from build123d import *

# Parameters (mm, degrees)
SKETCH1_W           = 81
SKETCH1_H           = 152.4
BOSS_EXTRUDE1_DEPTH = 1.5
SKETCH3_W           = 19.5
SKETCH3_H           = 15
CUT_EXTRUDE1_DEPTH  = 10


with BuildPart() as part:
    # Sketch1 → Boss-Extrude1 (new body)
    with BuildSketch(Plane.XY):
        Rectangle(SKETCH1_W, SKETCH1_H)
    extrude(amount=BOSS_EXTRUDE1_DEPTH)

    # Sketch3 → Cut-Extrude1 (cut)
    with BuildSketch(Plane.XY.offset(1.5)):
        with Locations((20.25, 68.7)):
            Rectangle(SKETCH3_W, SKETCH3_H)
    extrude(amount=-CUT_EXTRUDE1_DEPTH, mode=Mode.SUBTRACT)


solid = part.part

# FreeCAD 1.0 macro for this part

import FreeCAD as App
import Part
import Sketcher
from FreeCAD import Vector
Q = App.Units.Quantity

doc = App.newDocument("Part")
body = doc.addObject("PartDesign::Body", "Body")

sketch1 = body.newObject("Sketcher::SketchObject", "Sketch")
sketch1.AttachmentSupport = (doc.getObject("XY_Plane"), [""])
sketch1.MapMode = "FlatFace"
sketch1.addGeometry([
    Part.LineSegment(Vector(-40, 76, 0), Vector(-40, -76, 0)),
    Part.LineSegment(Vector(-40, -76, 0), Vector(40, -76, 0)),
    Part.LineSegment(Vector(40, -76, 0), Vector(40, 76, 0)),
    Part.LineSegment(Vector(40, 76, 0), Vector(-40, 76, 0)),
], False)
sketch1.addConstraint([
    Sketcher.Constraint("Coincident", 0, 2, 1, 1),
    Sketcher.Constraint("Coincident", 1, 2, 2, 1),
    Sketcher.Constraint("Coincident", 2, 2, 3, 1),
    Sketcher.Constraint("Coincident", 3, 2, 0, 1),
    Sketcher.Constraint("Vertical", 0),
    Sketcher.Constraint("Horizontal", 1),
    Sketcher.Constraint("Vertical", 2),
    Sketcher.Constraint("Horizontal", 3),
    Sketcher.Constraint("Symmetric", 0, 2, 2, 2, -1, 1),
    Sketcher.Constraint("DistanceX", 1, 1, 1, 2, Q("81 mm")),
    Sketcher.Constraint("DistanceY", 0, 2, 0, 1, Q("152.4 mm")),
])
pad1 = body.newObject("PartDesign::Pad", "Pad")
pad1.Profile = sketch1
pad1.Length = 1.5

sketch2 = body.newObject("Sketcher::SketchObject", "Sketch001")
sketch2.AttachmentSupport = (doc.getObject("XY_Plane"), [""])
sketch2.MapMode = "FlatFace"
sketch2.AttachmentOffset = App.Placement(Vector(0, 0, 1.5), App.Rotation())
sketch2.addGeometry([
    Part.LineSegment(Vector(10, 76, 0), Vector(10, 61, 0)),
    Part.LineSegment(Vector(10, 61, 0), Vector(30, 61, 0)),
    Part.LineSegment(Vector(30, 61, 0), Vector(30, 76, 0)),
    Part.LineSegment(Vector(30, 76, 0), Vector(10, 76, 0)),
], False)
sketch2.addConstraint([
    Sketcher.Constraint("Coincident", 0, 2, 1, 1),
    Sketcher.Constraint("Coincident", 1, 2, 2, 1),
    Sketcher.Constraint("Coincident", 2, 2, 3, 1),
    Sketcher.Constraint("Coincident", 3, 2, 0, 1),
    Sketcher.Constraint("Vertical", 0),
    Sketcher.Constraint("Horizontal", 1),
    Sketcher.Constraint("Vertical", 2),
    Sketcher.Constraint("Horizontal", 3),
    Sketcher.Constraint("DistanceY", 0, 2, 0, 1, Q("15 mm")),
    Sketcher.Constraint("DistanceX", 1, 1, 1, 2, Q("19.5 mm")),
    Sketcher.Constraint("DistanceX", -1, 1, 1, 2, Q("30 mm")),
    Sketcher.Constraint("DistanceY", -1, 1, 0, 2, Q("61.2 mm")),
])
pocket1 = body.newObject("PartDesign::Pocket", "Pocket")
pocket1.Profile = sketch2
pocket1.Length = 10

doc.recompute()
